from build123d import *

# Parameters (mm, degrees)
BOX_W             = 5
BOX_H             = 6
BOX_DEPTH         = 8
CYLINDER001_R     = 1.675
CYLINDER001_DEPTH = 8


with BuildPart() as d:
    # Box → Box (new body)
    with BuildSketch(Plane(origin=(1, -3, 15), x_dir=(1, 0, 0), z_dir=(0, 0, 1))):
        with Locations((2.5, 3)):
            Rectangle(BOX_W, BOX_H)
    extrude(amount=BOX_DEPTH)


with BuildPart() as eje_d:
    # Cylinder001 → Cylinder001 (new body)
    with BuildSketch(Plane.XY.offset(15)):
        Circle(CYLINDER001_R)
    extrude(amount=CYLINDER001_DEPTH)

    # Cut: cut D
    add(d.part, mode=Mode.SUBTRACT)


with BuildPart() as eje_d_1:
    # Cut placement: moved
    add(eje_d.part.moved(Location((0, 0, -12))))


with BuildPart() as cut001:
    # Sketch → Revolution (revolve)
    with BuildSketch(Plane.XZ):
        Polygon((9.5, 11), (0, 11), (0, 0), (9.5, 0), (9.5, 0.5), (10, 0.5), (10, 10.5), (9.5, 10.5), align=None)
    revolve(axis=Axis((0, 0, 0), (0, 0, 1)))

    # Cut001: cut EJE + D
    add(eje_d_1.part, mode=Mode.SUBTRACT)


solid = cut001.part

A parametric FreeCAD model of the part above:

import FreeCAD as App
import Part
import Sketcher

V = App.Vector
Q = App.Units.Quantity


def add_polygon(sketch, points):
    """Adds a closed chain of lines whose ends are joined by coincident constraints."""
    first, n = sketch.GeometryCount, len(points)
    for a, b in zip(points, points[1:] + points[:1]):
        sketch.addGeometry(Part.LineSegment(App.Vector(*a, 0), App.Vector(*b, 0)), False)
    for i in range(n):
        sketch.addConstraint(Sketcher.Constraint("Coincident", first + i, 2, first + (i + 1) % n, 1))

doc = App.newDocument("Part")
body = doc.addObject("PartDesign::Body", "Body")

# Sketch on XY plane
sketch1 = doc.addObject("Sketcher::SketchObject", "Sketch")
body.addObject(sketch1)
sketch1.AttachmentSupport = (doc.XY_Plane, [""])
sketch1.MapMode = "FlatFace"
sketch1.AttachmentOffset = App.Placement(V(0, 0, 15), App.Rotation())
add_polygon(sketch1, [(1, 3), (1, -3), (6, -3), (6, 3)])  # lines 0-3
sketch1.addConstraint(Sketcher.Constraint("Vertical", 0))
sketch1.addConstraint(Sketcher.Constraint("Horizontal", 1))
sketch1.addConstraint(Sketcher.Constraint("Vertical", 2))
sketch1.addConstraint(Sketcher.Constraint("Horizontal", 3))
sketch1.addConstraint(Sketcher.Constraint("DistanceX", 1, 1, 1, 2, Q("5 mm")))
sketch1.addConstraint(Sketcher.Constraint("DistanceY", 0, 2, 0, 1, Q("6 mm")))
sketch1.addConstraint(Sketcher.Constraint("DistanceX", -1, 1, 0, 2, Q("1 mm")))
sketch1.addConstraint(Sketcher.Constraint("DistanceY", 0, 2, -1, 1, Q("3 mm")))
pad1 = doc.addObject("PartDesign::Pad", "Pad")
body.addObject(pad1)
pad1.Profile = sketch1
pad1.Length = 8
body2 = doc.addObject("PartDesign::Body", "Body001")

# Sketch on XY plane
sketch2 = doc.addObject("Sketcher::SketchObject", "Sketch001")
body2.addObject(sketch2)
sketch2.AttachmentSupport = (doc.getObject("XY_Plane001"), [""])
sketch2.MapMode = "FlatFace"
sketch2.AttachmentOffset = App.Placement(V(0, 0, 15), App.Rotation())
sketch2.addGeometry(Part.Circle(V(0, 0, 0), V(0, 0, 1), 1.7), False)
sketch2.addConstraint(Sketcher.Constraint("Coincident", 0, 3, -1, 1))
sketch2.addConstraint(Sketcher.Constraint("Diameter", 0, Q("3.35 mm")))
pad2 = doc.addObject("PartDesign::Pad", "Pad001")
body2.addObject(pad2)
pad2.Profile = sketch2
pad2.Length = 8
doc.recompute()

boolean = doc.addObject("PartDesign::Boolean", "Boolean")
body2.addObject(boolean)
boolean.Type = "Cut"
boolean.addObjects([body])
body3 = doc.addObject("PartDesign::Body", "Body002")
doc.recompute()

body2.Placement = App.Placement(V(0, 0, -12), App.Rotation(V(0, 0, 1), 0))
boolean2 = doc.addObject("PartDesign::Boolean", "Boolean001")
body3.addObject(boolean2)
boolean2.Type = "Fuse"
boolean2.addObjects([body2])
body4 = doc.addObject("PartDesign::Body", "Body003")

# Sketch on XZ plane
sketch3 = doc.addObject("Sketcher::SketchObject", "Sketch002")
body4.addObject(sketch3)
sketch3.AttachmentSupport = (doc.getObject("XZ_Plane003"), [""])
sketch3.MapMode = "FlatFace"
add_polygon(sketch3, [(9.5, 11), (0, 11), (0, 0), (9.5, 0), (9.5, 0.5), (10, 0.5), (10, 10.5), (9.5, 10.5)])  # lines 0-7
sketch3.addConstraint(Sketcher.Constraint("Horizontal", 0))
sketch3.addConstraint(Sketcher.Constraint("Vertical", 1))
sketch3.addConstraint(Sketcher.Constraint("Horizontal", 2))
sketch3.addConstraint(Sketcher.Constraint("Vertical", 3))
sketch3.addConstraint(Sketcher.Constraint("Horizontal", 4))
sketch3.addConstraint(Sketcher.Constraint("Vertical", 5))
sketch3.addConstraint(Sketcher.Constraint("Horizontal", 6))
sketch3.addConstraint(Sketcher.Constraint("Vertical", 7))
sketch3.addConstraint(Sketcher.Constraint("Coincident", 1, 2, -1, 1))
sketch3.addConstraint(Sketcher.Constraint("Vertical", 3, 2, 6, 2))
sketch3.addConstraint(Sketcher.Constraint("Equal", 6, 3))
sketch3.addConstraint(Sketcher.Constraint("Equal", 3, 7))
sketch3.addConstraint(Sketcher.Constraint("DistanceY", 1, 2, 1, 1, Q("11 mm")))
sketch3.addConstraint(Sketcher.Constraint("DistanceY", 5, 1, 5, 2, Q("10 mm")))
sketch3.addConstraint(Sketcher.Constraint("DistanceX", 0, 2, 0, 1, Q("9.5 mm")))
revolution = doc.addObject("PartDesign::Revolution", "Revolution")
body4.addObject(revolution)
revolution.Profile = sketch3
revolution.ReferenceAxis = (sketch3, ["V_Axis"])
revolution.Angle = 360
doc.recompute()

boolean3 = doc.addObject("PartDesign::Boolean", "Boolean002")
body4.addObject(boolean3)
boolean3.Type = "Cut"
boolean3.addObjects([body3])

doc.recompute()
